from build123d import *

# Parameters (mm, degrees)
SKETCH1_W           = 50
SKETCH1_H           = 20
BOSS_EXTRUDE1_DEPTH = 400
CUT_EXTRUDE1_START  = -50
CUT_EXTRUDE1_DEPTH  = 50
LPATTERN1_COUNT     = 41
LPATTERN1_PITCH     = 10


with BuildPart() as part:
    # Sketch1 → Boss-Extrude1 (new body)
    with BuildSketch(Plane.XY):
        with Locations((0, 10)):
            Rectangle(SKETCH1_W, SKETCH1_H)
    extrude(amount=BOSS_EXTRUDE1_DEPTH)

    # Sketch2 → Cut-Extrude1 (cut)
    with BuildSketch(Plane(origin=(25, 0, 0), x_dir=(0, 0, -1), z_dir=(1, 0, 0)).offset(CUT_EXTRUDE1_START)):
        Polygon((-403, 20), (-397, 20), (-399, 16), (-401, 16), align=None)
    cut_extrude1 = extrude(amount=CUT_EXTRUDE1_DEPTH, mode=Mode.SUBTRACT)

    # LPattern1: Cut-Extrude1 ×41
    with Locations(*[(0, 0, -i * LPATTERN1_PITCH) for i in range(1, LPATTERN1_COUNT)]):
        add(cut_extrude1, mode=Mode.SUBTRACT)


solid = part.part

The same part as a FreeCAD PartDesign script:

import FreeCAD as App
import Part
import Sketcher
from FreeCAD import Vector

doc = App.newDocument("Part")
body = doc.addObject("PartDesign::Body", "Body")

# Sketch on XY plane
sketch1 = body.newObject("Sketcher::SketchObject", "Sketch")
sketch1.AttachmentSupport = (doc.getObject("XY_Plane"), [""])
sketch1.MapMode = "FlatFace"
sketch1.addGeometry(Part.LineSegment(Vector(-25, 20, 0), Vector(-25, 0, 0)), False)
sketch1.addGeometry(Part.LineSegment(Vector(-25, 0, 0), Vector(25, 0, 0)), False)
sketch1.addGeometry(Part.LineSegment(Vector(25, 0, 0), Vector(25, 20, 0)), False)
sketch1.addGeometry(Part.LineSegment(Vector(25, 20, 0), Vector(-25, 20, 0)), False)
sketch1.addConstraint(Sketcher.Constraint("Coincident", 0, 2, 1, 1))
sketch1.addConstraint(Sketcher.Constraint("Coincident", 1, 2, 2, 1))
sketch1.addConstraint(Sketcher.Constraint("Coincident", 2, 2, 3, 1))
sketch1.addConstraint(Sketcher.Constraint("Coincident", 3, 2, 0, 1))
sketch1.addConstraint(Sketcher.Constraint("Vertical", 0))
sketch1.addConstraint(Sketcher.Constraint("Horizontal", 1))
sketch1.addConstraint(Sketcher.Constraint("Vertical", 2))
sketch1.addConstraint(Sketcher.Constraint("Horizontal", 3))
sketch1.addConstraint(Sketcher.Constraint("Symmetric", 0, 2, 1, 2, -1, 1))
sketch1.addConstraint(Sketcher.Constraint("DistanceX", 1, 1, 1, 2, 50.0))
sketch1.addConstraint(Sketcher.Constraint("DistanceY", 0, 2, 0, 1, 20.0))
pad1 = body.newObject("PartDesign::Pad", "Pad")
pad1.Profile = sketch1
pad1.Length = 400

# Sketch on YZ plane
sketch2 = body.newObject("Sketcher::SketchObject", "Sketch001")
sketch2.AttachmentSupport = (doc.getObject("YZ_Plane"), [""])
sketch2.MapMode = "FlatFace"
sketch2.AttachmentOffset = App.Placement(Vector(0, 0, -25), App.Rotation())
sketch2.addGeometry(Part.LineSegment(Vector(20, 397, 0), Vector(20, 403, 0)), False)
sketch2.addGeometry(Part.LineSegment(Vector(20, 403, 0), Vector(16, 401, 0)), False)
sketch2.addGeometry(Part.LineSegment(Vector(16, 401, 0), Vector(16, 399, 0)), False)
sketch2.addGeometry(Part.LineSegment(Vector(16, 399, 0), Vector(20, 397, 0)), False)
sketch2.addConstraint(Sketcher.Constraint("Coincident", 0, 2, 1, 1))
sketch2.addConstraint(Sketcher.Constraint("Coincident", 1, 2, 2, 1))
sketch2.addConstraint(Sketcher.Constraint("Coincident", 2, 2, 3, 1))
sketch2.addConstraint(Sketcher.Constraint("Coincident", 3, 2, 0, 1))
sketch2.addConstraint(Sketcher.Constraint("Vertical", 0))
sketch2.addConstraint(Sketcher.Constraint("Vertical", 2))
sketch2.addConstraint(Sketcher.Constraint("Equal", 1, 3))
sketch2.addConstraint(Sketcher.Constraint("DistanceY", 0, 1, 0, 2, 6.0))
sketch2.addConstraint(Sketcher.Constraint("DistanceY", 2, 2, 2, 1, 2.0))
sketch2.addConstraint(Sketcher.Constraint("DistanceX", -1, 1, 0, 2, 20.0))
sketch2.addConstraint(Sketcher.Constraint("DistanceY", -1, 1, 0, 2, 403.0))
sketch2.addConstraint(Sketcher.Constraint("DistanceX", -1, 1, 1, 2, 16.0))
pocket1 = body.newObject("PartDesign::Pocket", "Pocket")
pocket1.Profile = sketch2
pocket1.Length = 50
pocket1.Reversed = True
doc.recompute()

linearpattern = body.newObject("PartDesign::LinearPattern", "LinearPattern")
linearpattern.Originals = [pocket1]
linearpattern.Direction = (doc.getObject("Z_Axis"), [""])
linearpattern.Mode = "offset"
linearpattern.Offset = 10
linearpattern.Occurrences = 41
linearpattern.Reversed = True
body.Tip = linearpattern

doc.recompute()
